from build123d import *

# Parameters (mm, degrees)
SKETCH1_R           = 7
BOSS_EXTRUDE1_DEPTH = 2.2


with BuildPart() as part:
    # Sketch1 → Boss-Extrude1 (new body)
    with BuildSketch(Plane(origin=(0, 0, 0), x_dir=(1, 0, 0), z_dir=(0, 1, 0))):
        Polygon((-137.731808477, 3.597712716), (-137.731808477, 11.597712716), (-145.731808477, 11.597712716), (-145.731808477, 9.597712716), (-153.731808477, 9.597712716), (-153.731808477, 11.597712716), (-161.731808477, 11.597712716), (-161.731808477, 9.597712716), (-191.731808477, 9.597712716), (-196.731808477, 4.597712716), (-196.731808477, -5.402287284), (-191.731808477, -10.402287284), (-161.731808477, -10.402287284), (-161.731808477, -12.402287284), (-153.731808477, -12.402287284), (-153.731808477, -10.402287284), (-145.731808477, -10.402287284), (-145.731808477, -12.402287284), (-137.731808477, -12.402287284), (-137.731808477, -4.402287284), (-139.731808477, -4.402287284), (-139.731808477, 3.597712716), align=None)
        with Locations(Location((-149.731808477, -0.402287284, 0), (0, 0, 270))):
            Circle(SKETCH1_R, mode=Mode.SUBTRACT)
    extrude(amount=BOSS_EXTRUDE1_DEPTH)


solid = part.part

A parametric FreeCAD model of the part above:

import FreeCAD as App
import Part
import Sketcher

V = App.Vector
Q = App.Units.Quantity

doc = App.newDocument("Part")
body = doc.addObject("PartDesign::Body", "Body")

# Sketch on XZ plane
sketch1 = body.newObject("Sketcher::SketchObject", "Sketch")
sketch1.AttachmentSupport = (doc.getObject("XZ_Plane"), [""])
sketch1.MapMode = "FlatFace"
sketch1.addGeometry([
    Part.LineSegment(V(-137.7, -3.6, 0), V(-137.7, -11.6, 0)),  # 0
    Part.LineSegment(V(-137.7, -11.6, 0), V(-145.7, -11.6, 0)),  # 1
    Part.LineSegment(V(-145.7, -11.6, 0), V(-145.7, -9.6, 0)),  # 2
    Part.LineSegment(V(-145.7, -9.6, 0), V(-153.7, -9.6, 0)),  # 3
    Part.LineSegment(V(-153.7, -9.6, 0), V(-153.7, -11.6, 0)),  # 4
    Part.LineSegment(V(-153.7, -11.6, 0), V(-161.7, -11.6, 0)),  # 5
    Part.LineSegment(V(-161.7, -11.6, 0), V(-161.7, -9.6, 0)),  # 6
    Part.LineSegment(V(-161.7, -9.6, 0), V(-191.7, -9.6, 0)),  # 7
    Part.LineSegment(V(-191.7, -9.6, 0), V(-196.7, -4.6, 0)),  # 8
    Part.LineSegment(V(-196.7, -4.6, 0), V(-196.7, 5.4, 0)),  # 9
    Part.LineSegment(V(-196.7, 5.4, 0), V(-191.7, 10.4, 0)),  # 10
    Part.LineSegment(V(-191.7, 10.4, 0), V(-161.7, 10.4, 0)),  # 11
    Part.LineSegment(V(-161.7, 10.4, 0), V(-161.7, 12.4, 0)),  # 12
    Part.LineSegment(V(-161.7, 12.4, 0), V(-153.7, 12.4, 0)),  # 13
    Part.LineSegment(V(-153.7, 12.4, 0), V(-153.7, 10.4, 0)),  # 14
    Part.LineSegment(V(-153.7, 10.4, 0), V(-145.7, 10.4, 0)),  # 15
    Part.LineSegment(V(-145.7, 10.4, 0), V(-145.7, 12.4, 0)),  # 16
    Part.LineSegment(V(-145.7, 12.4, 0), V(-137.7, 12.4, 0)),  # 17
    Part.LineSegment(V(-137.7, 12.4, 0), V(-137.7, 4.4, 0)),  # 18
    Part.LineSegment(V(-137.7, 4.4, 0), V(-139.7, 4.4, 0)),  # 19
    Part.LineSegment(V(-139.7, 4.4, 0), V(-139.7, -3.6, 0)),  # 20
    Part.LineSegment(V(-139.7, -3.6, 0), V(-137.7, -3.6, 0)),  # 21
    Part.Circle(V(-149.7, 0.4, 0), V(0, 0, 1), 7),  # 22
], False)
sketch1.addConstraint([
    Sketcher.Constraint("Coincident", 0, 2, 1, 1),
    Sketcher.Constraint("Coincident", 1, 2, 2, 1),
    Sketcher.Constraint("Coincident", 2, 2, 3, 1),
    Sketcher.Constraint("Coincident", 3, 2, 4, 1),
    Sketcher.Constraint("Coincident", 4, 2, 5, 1),
    Sketcher.Constraint("Coincident", 5, 2, 6, 1),
    Sketcher.Constraint("Coincident", 6, 2, 7, 1),
    Sketcher.Constraint("Coincident", 7, 2, 8, 1),
    Sketcher.Constraint("Coincident", 8, 2, 9, 1),
    Sketcher.Constraint("Coincident", 9, 2, 10, 1),
    Sketcher.Constraint("Coincident", 10, 2, 11, 1),
    Sketcher.Constraint("Coincident", 11, 2, 12, 1),
    Sketcher.Constraint("Coincident", 12, 2, 13, 1),
    Sketcher.Constraint("Coincident", 13, 2, 14, 1),
    Sketcher.Constraint("Coincident", 14, 2, 15, 1),
    Sketcher.Constraint("Coincident", 15, 2, 16, 1),
    Sketcher.Constraint("Coincident", 16, 2, 17, 1),
    Sketcher.Constraint("Coincident", 17, 2, 18, 1),
    Sketcher.Constraint("Coincident", 18, 2, 19, 1),
    Sketcher.Constraint("Coincident", 19, 2, 20, 1),
    Sketcher.Constraint("Coincident", 20, 2, 21, 1),
    Sketcher.Constraint("Coincident", 21, 2, 0, 1),
    Sketcher.Constraint("Vertical", 0),
    Sketcher.Constraint("Horizontal", 1),
    Sketcher.Constraint("Vertical", 2),
    Sketcher.Constraint("Horizontal", 3),
    Sketcher.Constraint("Vertical", 4),
    Sketcher.Constraint("Horizontal", 5),
    Sketcher.Constraint("Vertical", 6),
    Sketcher.Constraint("Horizontal", 7),
    Sketcher.Constraint("Vertical", 9),
    Sketcher.Constraint("Horizontal", 11),
    Sketcher.Constraint("Vertical", 12),
    Sketcher.Constraint("Horizontal", 13),
    Sketcher.Constraint("Vertical", 14),
    Sketcher.Constraint("Horizontal", 15),
    Sketcher.Constraint("Vertical", 16),
    Sketcher.Constraint("Horizontal", 17),
    Sketcher.Constraint("Vertical", 18),
    Sketcher.Constraint("Horizontal", 19),
    Sketcher.Constraint("Vertical", 20),
    Sketcher.Constraint("Horizontal", 21),
    Sketcher.Constraint("Perpendicular", 8, 10),
    Sketcher.Constraint("Horizontal", 1, 2, 4, 2),
    Sketcher.Constraint("Horizontal", 3, 2, 6, 2),
    Sketcher.Constraint("Horizontal", 11, 2, 14, 2),
    Sketcher.Constraint("Horizontal", 13, 2, 16, 2),
    Sketcher.Constraint("Vertical", 7, 2, 10, 2),
    Sketcher.Constraint("Vertical", 6, 2, 11, 2),
    Sketcher.Constraint("Vertical", 4, 2, 13, 2),
    Sketcher.Constraint("Vertical", 2, 2, 15, 2),
    Sketcher.Constraint("Vertical", 0, 2, 17, 2),
    Sketcher.Constraint("Equal", 1, 3),
    Sketcher.Constraint("Equal", 3, 5),
    Sketcher.Constraint("Equal", 17, 0),
    Sketcher.Constraint("Equal", 21, 2),
    Sketcher.Constraint("Equal", 6, 12),
    Sketcher.Constraint("Equal", 0, 18),
    Sketcher.Constraint("Equal", 18, 20),
    Sketcher.Constraint("Equal", 8, 10),
    Sketcher.Constraint("Diameter", 22, Q("14 mm")),
    Sketcher.Constraint("DistanceX", 1, 2, 1, 1, Q("8 mm")),
    Sketcher.Constraint("DistanceX", 7, 2, 7, 1, Q("30 mm")),
    Sketcher.Constraint("DistanceX", 19, 2, 19, 1, Q("2 mm")),
    Sketcher.Constraint("DistanceY", 9, 1, 9, 2, Q("10 mm")),
    Sketcher.Constraint("DistanceX", 22, 3, 0, 2, Q("12 mm")),
    Sketcher.Constraint("DistanceY", 0, 2, 22, 3, Q("12 mm")),
    Sketcher.Constraint("DistanceX", 22, 3, -1, 1, Q("149.731808 mm")),
    Sketcher.Constraint("DistanceY", -1, 1, 22, 3, Q("0.402287 mm")),
])
pad1 = body.newObject("PartDesign::Pad", "Pad")
pad1.Profile = sketch1
pad1.Length = 2.2
pad1.Reversed = True

doc.recompute()
